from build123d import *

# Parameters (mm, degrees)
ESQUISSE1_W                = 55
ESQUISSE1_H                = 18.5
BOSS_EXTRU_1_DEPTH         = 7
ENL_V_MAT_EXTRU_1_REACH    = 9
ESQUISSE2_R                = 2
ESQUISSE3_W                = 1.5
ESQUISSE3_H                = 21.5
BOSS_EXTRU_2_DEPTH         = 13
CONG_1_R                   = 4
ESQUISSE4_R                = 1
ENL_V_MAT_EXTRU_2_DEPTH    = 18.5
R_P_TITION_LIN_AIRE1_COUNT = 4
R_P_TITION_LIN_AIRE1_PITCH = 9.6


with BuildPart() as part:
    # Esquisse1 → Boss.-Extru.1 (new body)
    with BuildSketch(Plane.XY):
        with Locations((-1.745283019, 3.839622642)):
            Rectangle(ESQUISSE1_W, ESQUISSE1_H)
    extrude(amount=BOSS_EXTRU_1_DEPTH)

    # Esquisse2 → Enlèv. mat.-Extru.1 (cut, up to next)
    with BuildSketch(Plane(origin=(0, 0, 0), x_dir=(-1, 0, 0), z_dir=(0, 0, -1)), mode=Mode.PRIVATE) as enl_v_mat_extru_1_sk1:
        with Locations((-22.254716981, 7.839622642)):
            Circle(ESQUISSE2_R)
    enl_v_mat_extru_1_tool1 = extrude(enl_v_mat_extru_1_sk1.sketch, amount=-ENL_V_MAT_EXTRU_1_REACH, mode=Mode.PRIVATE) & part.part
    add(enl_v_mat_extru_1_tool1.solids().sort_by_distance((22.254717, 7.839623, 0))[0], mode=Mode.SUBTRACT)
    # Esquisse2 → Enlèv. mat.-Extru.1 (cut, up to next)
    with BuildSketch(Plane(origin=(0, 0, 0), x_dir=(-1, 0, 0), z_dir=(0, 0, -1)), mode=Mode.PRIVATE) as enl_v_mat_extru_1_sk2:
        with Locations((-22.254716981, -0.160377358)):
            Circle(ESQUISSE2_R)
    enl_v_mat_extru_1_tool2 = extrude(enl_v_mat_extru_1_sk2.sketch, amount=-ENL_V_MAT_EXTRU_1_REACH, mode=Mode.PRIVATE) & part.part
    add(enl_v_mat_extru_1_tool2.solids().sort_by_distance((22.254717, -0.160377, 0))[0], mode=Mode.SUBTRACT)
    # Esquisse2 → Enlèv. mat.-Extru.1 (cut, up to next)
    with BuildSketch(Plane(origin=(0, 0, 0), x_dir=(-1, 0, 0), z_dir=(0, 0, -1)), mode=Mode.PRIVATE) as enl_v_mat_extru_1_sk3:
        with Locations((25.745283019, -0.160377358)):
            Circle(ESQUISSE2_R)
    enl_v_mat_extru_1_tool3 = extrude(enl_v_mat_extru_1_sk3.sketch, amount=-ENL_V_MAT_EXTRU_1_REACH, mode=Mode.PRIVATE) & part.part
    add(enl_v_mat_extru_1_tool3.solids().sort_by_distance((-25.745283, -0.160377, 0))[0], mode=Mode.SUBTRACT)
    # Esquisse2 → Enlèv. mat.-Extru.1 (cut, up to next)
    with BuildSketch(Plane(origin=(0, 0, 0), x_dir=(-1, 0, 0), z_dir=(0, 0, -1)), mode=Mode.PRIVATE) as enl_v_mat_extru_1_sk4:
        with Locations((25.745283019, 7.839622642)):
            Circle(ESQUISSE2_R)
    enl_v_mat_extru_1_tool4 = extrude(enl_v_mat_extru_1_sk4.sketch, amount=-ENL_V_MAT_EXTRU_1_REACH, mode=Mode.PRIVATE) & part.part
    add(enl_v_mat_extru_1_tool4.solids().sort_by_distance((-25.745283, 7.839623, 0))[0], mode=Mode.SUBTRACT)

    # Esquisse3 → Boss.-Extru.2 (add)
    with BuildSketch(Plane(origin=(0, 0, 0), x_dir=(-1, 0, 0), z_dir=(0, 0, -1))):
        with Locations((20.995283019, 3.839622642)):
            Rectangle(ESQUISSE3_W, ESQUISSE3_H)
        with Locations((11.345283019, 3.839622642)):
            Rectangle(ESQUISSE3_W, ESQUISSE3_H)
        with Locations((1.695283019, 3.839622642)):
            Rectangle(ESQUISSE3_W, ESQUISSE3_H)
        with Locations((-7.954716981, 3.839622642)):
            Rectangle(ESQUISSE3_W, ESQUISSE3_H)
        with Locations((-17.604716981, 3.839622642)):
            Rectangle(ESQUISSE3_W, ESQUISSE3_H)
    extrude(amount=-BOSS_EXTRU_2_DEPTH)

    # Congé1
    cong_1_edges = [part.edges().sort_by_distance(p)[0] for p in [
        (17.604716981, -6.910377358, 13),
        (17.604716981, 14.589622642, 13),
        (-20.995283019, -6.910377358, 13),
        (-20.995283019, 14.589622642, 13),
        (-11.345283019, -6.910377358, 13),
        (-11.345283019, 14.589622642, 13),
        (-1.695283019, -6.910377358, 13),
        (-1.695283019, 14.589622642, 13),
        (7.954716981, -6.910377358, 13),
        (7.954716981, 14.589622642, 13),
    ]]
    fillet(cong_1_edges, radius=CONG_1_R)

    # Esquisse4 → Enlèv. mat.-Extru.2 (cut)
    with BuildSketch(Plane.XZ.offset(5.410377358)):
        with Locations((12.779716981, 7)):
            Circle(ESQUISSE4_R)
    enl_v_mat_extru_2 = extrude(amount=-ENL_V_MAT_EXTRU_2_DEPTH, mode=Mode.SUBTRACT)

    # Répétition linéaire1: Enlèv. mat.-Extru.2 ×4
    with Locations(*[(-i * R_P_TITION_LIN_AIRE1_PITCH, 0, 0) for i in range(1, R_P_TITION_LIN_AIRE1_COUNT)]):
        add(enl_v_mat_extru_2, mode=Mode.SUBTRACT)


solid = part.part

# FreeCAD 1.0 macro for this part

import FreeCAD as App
import Part
import Sketcher
from FreeCAD import Vector


def edges_at(feature, points):
    """Names of the edges that pass closest to the given points."""
    edges = feature.Shape.Edges
    near = lambda p: min(range(len(edges)), key=lambda i: edges[i].distToShape(Part.Vertex(*p))[0])
    return sorted({f"Edge{near(p) + 1}" for p in points})


def add_polygon(sketch, points):
    """Adds a closed chain of lines whose ends are joined by coincident constraints."""
    first, n = sketch.GeometryCount, len(points)
    for a, b in zip(points, points[1:] + points[:1]):
        sketch.addGeometry(Part.LineSegment(App.Vector(*a, 0), App.Vector(*b, 0)), False)
    for i in range(n):
        sketch.addConstraint(Sketcher.Constraint("Coincident", first + i, 2, first + (i + 1) % n, 1))

doc = App.newDocument("Part")
body = doc.addObject("PartDesign::Body", "Body")

# Sketch on XY plane
sketch1 = body.newObject("Sketcher::SketchObject", "Sketch")
sketch1.AttachmentSupport = (doc.getObject("XY_Plane"), [""])
sketch1.MapMode = "FlatFace"
add_polygon(sketch1, [(-29, 13), (-29, -5), (26, -5), (26, 13)])  # lines 0-3
sketch1.addConstraint(Sketcher.Constraint("Vertical", 0))
sketch1.addConstraint(Sketcher.Constraint("Horizontal", 1))
sketch1.addConstraint(Sketcher.Constraint("Vertical", 2))
sketch1.addConstraint(Sketcher.Constraint("Horizontal", 3))
sketch1.addConstraint(Sketcher.Constraint("DistanceX", 1, 1, 1, 2, 55.0))
sketch1.addConstraint(Sketcher.Constraint("DistanceY", 0, 2, 0, 1, 18.5))
sketch1.addConstraint(Sketcher.Constraint("DistanceX", 0, 2, -1, 1, 29.245283))
sketch1.addConstraint(Sketcher.Constraint("DistanceY", 0, 2, -1, 1, 5.410377))
pad1 = body.newObject("PartDesign::Pad", "Pad")
pad1.Profile = sketch1
pad1.Length = 7

# Sketch on XY plane
sketch2 = body.newObject("Sketcher::SketchObject", "Sketch001")
sketch2.AttachmentSupport = (doc.getObject("XY_Plane"), [""])
sketch2.MapMode = "FlatFace"
sketch2.addGeometry(Part.Circle(Vector(22.3, 7.8, 0), Vector(0, 0, 1), 2), False)
sketch2.addConstraint(Sketcher.Constraint("Diameter", 0, 4.0))
sketch2.addConstraint(Sketcher.Constraint("DistanceX", -1, 1, 0, 3, 22.254717))
sketch2.addConstraint(Sketcher.Constraint("DistanceY", -1, 1, 0, 3, 7.839623))
pocket1 = body.newObject("PartDesign::Pocket", "Pocket")
pocket1.Profile = sketch2
pocket1.Type = "UpToFirst"
pocket1.Reversed = True

# Sketch on XY plane
sketch3 = body.newObject("Sketcher::SketchObject", "Sketch002")
sketch3.AttachmentSupport = (doc.getObject("XY_Plane"), [""])
sketch3.MapMode = "FlatFace"
sketch3.addGeometry(Part.Circle(Vector(22.3, -0.2, 0), Vector(0, 0, 1), 2), False)
sketch3.addConstraint(Sketcher.Constraint("Diameter", 0, 4.0))
sketch3.addConstraint(Sketcher.Constraint("DistanceX", -1, 1, 0, 3, 22.254717))
sketch3.addConstraint(Sketcher.Constraint("DistanceY", 0, 3, -1, 1, 0.160377))
pocket2 = body.newObject("PartDesign::Pocket", "Pocket001")
pocket2.Profile = sketch3
pocket2.Type = "UpToFirst"
pocket2.Reversed = True

# Sketch on XY plane
sketch4 = body.newObject("Sketcher::SketchObject", "Sketch003")
sketch4.AttachmentSupport = (doc.getObject("XY_Plane"), [""])
sketch4.MapMode = "FlatFace"
sketch4.addGeometry(Part.Circle(Vector(-25.7, -0.2, 0), Vector(0, 0, 1), 2), False)
sketch4.addConstraint(Sketcher.Constraint("Diameter", 0, 4.0))
sketch4.addConstraint(Sketcher.Constraint("DistanceX", 0, 3, -1, 1, 25.745283))
sketch4.addConstraint(Sketcher.Constraint("DistanceY", 0, 3, -1, 1, 0.160377))
pocket3 = body.newObject("PartDesign::Pocket", "Pocket002")
pocket3.Profile = sketch4
pocket3.Type = "UpToFirst"
pocket3.Reversed = True

# Sketch on XY plane
sketch5 = body.newObject("Sketcher::SketchObject", "Sketch004")
sketch5.AttachmentSupport = (doc.getObject("XY_Plane"), [""])
sketch5.MapMode = "FlatFace"
sketch5.addGeometry(Part.Circle(Vector(-25.7, 7.8, 0), Vector(0, 0, 1), 2), False)
sketch5.addConstraint(Sketcher.Constraint("Diameter", 0, 4.0))
sketch5.addConstraint(Sketcher.Constraint("DistanceX", 0, 3, -1, 1, 25.745283))
sketch5.addConstraint(Sketcher.Constraint("DistanceY", -1, 1, 0, 3, 7.839623))
pocket4 = body.newObject("PartDesign::Pocket", "Pocket003")
pocket4.Profile = sketch5
pocket4.Type = "UpToFirst"
pocket4.Reversed = True

# Sketch on XY plane
sketch6 = body.newObject("Sketcher::SketchObject", "Sketch005")
sketch6.AttachmentSupport = (doc.getObject("XY_Plane"), [""])
sketch6.MapMode = "FlatFace"
add_polygon(sketch6, [(-20.2, 14.6), (-20.2, -6.9), (-21.7, -6.9), (-21.7, 14.6)])  # lines 0-3
add_polygon(sketch6, [(-10.6, 14.6), (-10.6, -6.9), (-12.1, -6.9), (-12.1, 14.6)])  # lines 4-7
add_polygon(sketch6, [(-0.9, 14.6), (-0.9, -6.9), (-2.4, -6.9), (-2.4, 14.6)])  # lines 8-11
add_polygon(sketch6, [(8.7, 14.6), (8.7, -6.9), (7.2, -6.9), (7.2, 14.6)])  # lines 12-15
add_polygon(sketch6, [(18.4, 14.6), (18.4, -6.9), (16.9, -6.9), (16.9, 14.6)])  # lines 16-19
sketch6.addConstraint(Sketcher.Constraint("Vertical", 0))
sketch6.addConstraint(Sketcher.Constraint("Horizontal", 1))
sketch6.addConstraint(Sketcher.Constraint("Vertical", 2))
sketch6.addConstraint(Sketcher.Constraint("Horizontal", 3))
sketch6.addConstraint(Sketcher.Constraint("Vertical", 4))
sketch6.addConstraint(Sketcher.Constraint("Horizontal", 5))
sketch6.addConstraint(Sketcher.Constraint("Vertical", 6))
sketch6.addConstraint(Sketcher.Constraint("Horizontal", 7))
sketch6.addConstraint(Sketcher.Constraint("Vertical", 8))
sketch6.addConstraint(Sketcher.Constraint("Horizontal", 9))
sketch6.addConstraint(Sketcher.Constraint("Vertical", 10))
sketch6.addConstraint(Sketcher.Constraint("Horizontal", 11))
sketch6.addConstraint(Sketcher.Constraint("Vertical", 12))
sketch6.addConstraint(Sketcher.Constraint("Horizontal", 13))
sketch6.addConstraint(Sketcher.Constraint("Vertical", 14))
sketch6.addConstraint(Sketcher.Constraint("Horizontal", 15))
sketch6.addConstraint(Sketcher.Constraint("Vertical", 16))
sketch6.addConstraint(Sketcher.Constraint("Horizontal", 17))
sketch6.addConstraint(Sketcher.Constraint("Vertical", 18))
sketch6.addConstraint(Sketcher.Constraint("Horizontal", 19))
sketch6.addConstraint(Sketcher.Constraint("Horizontal", 1, 2, 4, 2))
sketch6.addConstraint(Sketcher.Constraint("Horizontal", 3, 2, 6, 2))
sketch6.addConstraint(Sketcher.Constraint("Horizontal", 5, 2, 8, 2))
sketch6.addConstraint(Sketcher.Constraint("Horizontal", 7, 2, 10, 2))
sketch6.addConstraint(Sketcher.Constraint("Horizontal", 9, 2, 12, 2))
sketch6.addConstraint(Sketcher.Constraint("Horizontal", 11, 2, 14, 2))
sketch6.addConstraint(Sketcher.Constraint("Horizontal", 13, 2, 16, 2))
sketch6.addConstraint(Sketcher.Constraint("Horizontal", 15, 2, 18, 2))
sketch6.addConstraint(Sketcher.Constraint("Equal", 3, 5))
sketch6.addConstraint(Sketcher.Constraint("Equal", 7, 9))
sketch6.addConstraint(Sketcher.Constraint("Equal", 11, 13))
sketch6.addConstraint(Sketcher.Constraint("Equal", 15, 17))
sketch6.addConstraint(Sketcher.Constraint("DistanceX", 1, 2, 1, 1, 1.5))
sketch6.addConstraint(Sketcher.Constraint("DistanceY", 0, 2, 0, 1, 21.5))
sketch6.addConstraint(Sketcher.Constraint("DistanceX", 0, 2, 8, 2, 19.3))
sketch6.addConstraint(Sketcher.Constraint("DistanceX", 4, 2, 12, 2, 19.3))
sketch6.addConstraint(Sketcher.Constraint("DistanceX", 8, 2, 16, 2, 19.3))
sketch6.addConstraint(Sketcher.Constraint("DistanceX", 0, 2, 4, 2, 9.65))
sketch6.addConstraint(Sketcher.Constraint("DistanceX", 0, 2, -1, 1, 20.245283))
sketch6.addConstraint(Sketcher.Constraint("DistanceY", 0, 2, -1, 1, 6.910377))
pad2 = body.newObject("PartDesign::Pad", "Pad001")
pad2.Profile = sketch6
pad2.Length = 13
doc.recompute()

fillet = body.newObject("PartDesign::Fillet", "Fillet")
fillet.Base = (pad2, edges_at(pad2, [
    (17.605, -6.91, 13),
    (17.605, 14.59, 13),
    (-20.995, -6.91, 13),
    (-20.995, 14.59, 13),
    (-11.345, -6.91, 13),
    (-11.345, 14.59, 13),
    (-1.695, -6.91, 13),
    (-1.695, 14.59, 13),
    (7.955, -6.91, 13),
    (7.955, 14.59, 13),
]))
fillet.Radius = 4

# Sketch on XZ plane
sketch7 = body.newObject("Sketcher::SketchObject", "Sketch006")
sketch7.AttachmentSupport = (doc.getObject("XZ_Plane"), [""])
sketch7.MapMode = "FlatFace"
sketch7.AttachmentOffset = App.Placement(Vector(0, 0, 5.410377), App.Rotation())
sketch7.addGeometry(Part.Circle(Vector(12.8, 7, 0), Vector(0, 0, 1), 1), False)
sketch7.addConstraint(Sketcher.Constraint("Diameter", 0, 2.0))
sketch7.addConstraint(Sketcher.Constraint("DistanceY", -1, 1, 0, 3, 7.0))
sketch7.addConstraint(Sketcher.Constraint("DistanceX", -1, 1, 0, 3, 12.779717))
pocket5 = body.newObject("PartDesign::Pocket", "Pocket004")
pocket5.Profile = sketch7
pocket5.Length = 18.5
doc.recompute()

linearpattern = body.newObject("PartDesign::LinearPattern", "LinearPattern")
linearpattern.Originals = [pocket5]
linearpattern.Direction = (doc.getObject("X_Axis"), [""])
linearpattern.Mode = "offset"
linearpattern.Offset = 9.6
linearpattern.Occurrences = 4
linearpattern.Reversed = True
body.Tip = linearpattern

doc.recompute()
